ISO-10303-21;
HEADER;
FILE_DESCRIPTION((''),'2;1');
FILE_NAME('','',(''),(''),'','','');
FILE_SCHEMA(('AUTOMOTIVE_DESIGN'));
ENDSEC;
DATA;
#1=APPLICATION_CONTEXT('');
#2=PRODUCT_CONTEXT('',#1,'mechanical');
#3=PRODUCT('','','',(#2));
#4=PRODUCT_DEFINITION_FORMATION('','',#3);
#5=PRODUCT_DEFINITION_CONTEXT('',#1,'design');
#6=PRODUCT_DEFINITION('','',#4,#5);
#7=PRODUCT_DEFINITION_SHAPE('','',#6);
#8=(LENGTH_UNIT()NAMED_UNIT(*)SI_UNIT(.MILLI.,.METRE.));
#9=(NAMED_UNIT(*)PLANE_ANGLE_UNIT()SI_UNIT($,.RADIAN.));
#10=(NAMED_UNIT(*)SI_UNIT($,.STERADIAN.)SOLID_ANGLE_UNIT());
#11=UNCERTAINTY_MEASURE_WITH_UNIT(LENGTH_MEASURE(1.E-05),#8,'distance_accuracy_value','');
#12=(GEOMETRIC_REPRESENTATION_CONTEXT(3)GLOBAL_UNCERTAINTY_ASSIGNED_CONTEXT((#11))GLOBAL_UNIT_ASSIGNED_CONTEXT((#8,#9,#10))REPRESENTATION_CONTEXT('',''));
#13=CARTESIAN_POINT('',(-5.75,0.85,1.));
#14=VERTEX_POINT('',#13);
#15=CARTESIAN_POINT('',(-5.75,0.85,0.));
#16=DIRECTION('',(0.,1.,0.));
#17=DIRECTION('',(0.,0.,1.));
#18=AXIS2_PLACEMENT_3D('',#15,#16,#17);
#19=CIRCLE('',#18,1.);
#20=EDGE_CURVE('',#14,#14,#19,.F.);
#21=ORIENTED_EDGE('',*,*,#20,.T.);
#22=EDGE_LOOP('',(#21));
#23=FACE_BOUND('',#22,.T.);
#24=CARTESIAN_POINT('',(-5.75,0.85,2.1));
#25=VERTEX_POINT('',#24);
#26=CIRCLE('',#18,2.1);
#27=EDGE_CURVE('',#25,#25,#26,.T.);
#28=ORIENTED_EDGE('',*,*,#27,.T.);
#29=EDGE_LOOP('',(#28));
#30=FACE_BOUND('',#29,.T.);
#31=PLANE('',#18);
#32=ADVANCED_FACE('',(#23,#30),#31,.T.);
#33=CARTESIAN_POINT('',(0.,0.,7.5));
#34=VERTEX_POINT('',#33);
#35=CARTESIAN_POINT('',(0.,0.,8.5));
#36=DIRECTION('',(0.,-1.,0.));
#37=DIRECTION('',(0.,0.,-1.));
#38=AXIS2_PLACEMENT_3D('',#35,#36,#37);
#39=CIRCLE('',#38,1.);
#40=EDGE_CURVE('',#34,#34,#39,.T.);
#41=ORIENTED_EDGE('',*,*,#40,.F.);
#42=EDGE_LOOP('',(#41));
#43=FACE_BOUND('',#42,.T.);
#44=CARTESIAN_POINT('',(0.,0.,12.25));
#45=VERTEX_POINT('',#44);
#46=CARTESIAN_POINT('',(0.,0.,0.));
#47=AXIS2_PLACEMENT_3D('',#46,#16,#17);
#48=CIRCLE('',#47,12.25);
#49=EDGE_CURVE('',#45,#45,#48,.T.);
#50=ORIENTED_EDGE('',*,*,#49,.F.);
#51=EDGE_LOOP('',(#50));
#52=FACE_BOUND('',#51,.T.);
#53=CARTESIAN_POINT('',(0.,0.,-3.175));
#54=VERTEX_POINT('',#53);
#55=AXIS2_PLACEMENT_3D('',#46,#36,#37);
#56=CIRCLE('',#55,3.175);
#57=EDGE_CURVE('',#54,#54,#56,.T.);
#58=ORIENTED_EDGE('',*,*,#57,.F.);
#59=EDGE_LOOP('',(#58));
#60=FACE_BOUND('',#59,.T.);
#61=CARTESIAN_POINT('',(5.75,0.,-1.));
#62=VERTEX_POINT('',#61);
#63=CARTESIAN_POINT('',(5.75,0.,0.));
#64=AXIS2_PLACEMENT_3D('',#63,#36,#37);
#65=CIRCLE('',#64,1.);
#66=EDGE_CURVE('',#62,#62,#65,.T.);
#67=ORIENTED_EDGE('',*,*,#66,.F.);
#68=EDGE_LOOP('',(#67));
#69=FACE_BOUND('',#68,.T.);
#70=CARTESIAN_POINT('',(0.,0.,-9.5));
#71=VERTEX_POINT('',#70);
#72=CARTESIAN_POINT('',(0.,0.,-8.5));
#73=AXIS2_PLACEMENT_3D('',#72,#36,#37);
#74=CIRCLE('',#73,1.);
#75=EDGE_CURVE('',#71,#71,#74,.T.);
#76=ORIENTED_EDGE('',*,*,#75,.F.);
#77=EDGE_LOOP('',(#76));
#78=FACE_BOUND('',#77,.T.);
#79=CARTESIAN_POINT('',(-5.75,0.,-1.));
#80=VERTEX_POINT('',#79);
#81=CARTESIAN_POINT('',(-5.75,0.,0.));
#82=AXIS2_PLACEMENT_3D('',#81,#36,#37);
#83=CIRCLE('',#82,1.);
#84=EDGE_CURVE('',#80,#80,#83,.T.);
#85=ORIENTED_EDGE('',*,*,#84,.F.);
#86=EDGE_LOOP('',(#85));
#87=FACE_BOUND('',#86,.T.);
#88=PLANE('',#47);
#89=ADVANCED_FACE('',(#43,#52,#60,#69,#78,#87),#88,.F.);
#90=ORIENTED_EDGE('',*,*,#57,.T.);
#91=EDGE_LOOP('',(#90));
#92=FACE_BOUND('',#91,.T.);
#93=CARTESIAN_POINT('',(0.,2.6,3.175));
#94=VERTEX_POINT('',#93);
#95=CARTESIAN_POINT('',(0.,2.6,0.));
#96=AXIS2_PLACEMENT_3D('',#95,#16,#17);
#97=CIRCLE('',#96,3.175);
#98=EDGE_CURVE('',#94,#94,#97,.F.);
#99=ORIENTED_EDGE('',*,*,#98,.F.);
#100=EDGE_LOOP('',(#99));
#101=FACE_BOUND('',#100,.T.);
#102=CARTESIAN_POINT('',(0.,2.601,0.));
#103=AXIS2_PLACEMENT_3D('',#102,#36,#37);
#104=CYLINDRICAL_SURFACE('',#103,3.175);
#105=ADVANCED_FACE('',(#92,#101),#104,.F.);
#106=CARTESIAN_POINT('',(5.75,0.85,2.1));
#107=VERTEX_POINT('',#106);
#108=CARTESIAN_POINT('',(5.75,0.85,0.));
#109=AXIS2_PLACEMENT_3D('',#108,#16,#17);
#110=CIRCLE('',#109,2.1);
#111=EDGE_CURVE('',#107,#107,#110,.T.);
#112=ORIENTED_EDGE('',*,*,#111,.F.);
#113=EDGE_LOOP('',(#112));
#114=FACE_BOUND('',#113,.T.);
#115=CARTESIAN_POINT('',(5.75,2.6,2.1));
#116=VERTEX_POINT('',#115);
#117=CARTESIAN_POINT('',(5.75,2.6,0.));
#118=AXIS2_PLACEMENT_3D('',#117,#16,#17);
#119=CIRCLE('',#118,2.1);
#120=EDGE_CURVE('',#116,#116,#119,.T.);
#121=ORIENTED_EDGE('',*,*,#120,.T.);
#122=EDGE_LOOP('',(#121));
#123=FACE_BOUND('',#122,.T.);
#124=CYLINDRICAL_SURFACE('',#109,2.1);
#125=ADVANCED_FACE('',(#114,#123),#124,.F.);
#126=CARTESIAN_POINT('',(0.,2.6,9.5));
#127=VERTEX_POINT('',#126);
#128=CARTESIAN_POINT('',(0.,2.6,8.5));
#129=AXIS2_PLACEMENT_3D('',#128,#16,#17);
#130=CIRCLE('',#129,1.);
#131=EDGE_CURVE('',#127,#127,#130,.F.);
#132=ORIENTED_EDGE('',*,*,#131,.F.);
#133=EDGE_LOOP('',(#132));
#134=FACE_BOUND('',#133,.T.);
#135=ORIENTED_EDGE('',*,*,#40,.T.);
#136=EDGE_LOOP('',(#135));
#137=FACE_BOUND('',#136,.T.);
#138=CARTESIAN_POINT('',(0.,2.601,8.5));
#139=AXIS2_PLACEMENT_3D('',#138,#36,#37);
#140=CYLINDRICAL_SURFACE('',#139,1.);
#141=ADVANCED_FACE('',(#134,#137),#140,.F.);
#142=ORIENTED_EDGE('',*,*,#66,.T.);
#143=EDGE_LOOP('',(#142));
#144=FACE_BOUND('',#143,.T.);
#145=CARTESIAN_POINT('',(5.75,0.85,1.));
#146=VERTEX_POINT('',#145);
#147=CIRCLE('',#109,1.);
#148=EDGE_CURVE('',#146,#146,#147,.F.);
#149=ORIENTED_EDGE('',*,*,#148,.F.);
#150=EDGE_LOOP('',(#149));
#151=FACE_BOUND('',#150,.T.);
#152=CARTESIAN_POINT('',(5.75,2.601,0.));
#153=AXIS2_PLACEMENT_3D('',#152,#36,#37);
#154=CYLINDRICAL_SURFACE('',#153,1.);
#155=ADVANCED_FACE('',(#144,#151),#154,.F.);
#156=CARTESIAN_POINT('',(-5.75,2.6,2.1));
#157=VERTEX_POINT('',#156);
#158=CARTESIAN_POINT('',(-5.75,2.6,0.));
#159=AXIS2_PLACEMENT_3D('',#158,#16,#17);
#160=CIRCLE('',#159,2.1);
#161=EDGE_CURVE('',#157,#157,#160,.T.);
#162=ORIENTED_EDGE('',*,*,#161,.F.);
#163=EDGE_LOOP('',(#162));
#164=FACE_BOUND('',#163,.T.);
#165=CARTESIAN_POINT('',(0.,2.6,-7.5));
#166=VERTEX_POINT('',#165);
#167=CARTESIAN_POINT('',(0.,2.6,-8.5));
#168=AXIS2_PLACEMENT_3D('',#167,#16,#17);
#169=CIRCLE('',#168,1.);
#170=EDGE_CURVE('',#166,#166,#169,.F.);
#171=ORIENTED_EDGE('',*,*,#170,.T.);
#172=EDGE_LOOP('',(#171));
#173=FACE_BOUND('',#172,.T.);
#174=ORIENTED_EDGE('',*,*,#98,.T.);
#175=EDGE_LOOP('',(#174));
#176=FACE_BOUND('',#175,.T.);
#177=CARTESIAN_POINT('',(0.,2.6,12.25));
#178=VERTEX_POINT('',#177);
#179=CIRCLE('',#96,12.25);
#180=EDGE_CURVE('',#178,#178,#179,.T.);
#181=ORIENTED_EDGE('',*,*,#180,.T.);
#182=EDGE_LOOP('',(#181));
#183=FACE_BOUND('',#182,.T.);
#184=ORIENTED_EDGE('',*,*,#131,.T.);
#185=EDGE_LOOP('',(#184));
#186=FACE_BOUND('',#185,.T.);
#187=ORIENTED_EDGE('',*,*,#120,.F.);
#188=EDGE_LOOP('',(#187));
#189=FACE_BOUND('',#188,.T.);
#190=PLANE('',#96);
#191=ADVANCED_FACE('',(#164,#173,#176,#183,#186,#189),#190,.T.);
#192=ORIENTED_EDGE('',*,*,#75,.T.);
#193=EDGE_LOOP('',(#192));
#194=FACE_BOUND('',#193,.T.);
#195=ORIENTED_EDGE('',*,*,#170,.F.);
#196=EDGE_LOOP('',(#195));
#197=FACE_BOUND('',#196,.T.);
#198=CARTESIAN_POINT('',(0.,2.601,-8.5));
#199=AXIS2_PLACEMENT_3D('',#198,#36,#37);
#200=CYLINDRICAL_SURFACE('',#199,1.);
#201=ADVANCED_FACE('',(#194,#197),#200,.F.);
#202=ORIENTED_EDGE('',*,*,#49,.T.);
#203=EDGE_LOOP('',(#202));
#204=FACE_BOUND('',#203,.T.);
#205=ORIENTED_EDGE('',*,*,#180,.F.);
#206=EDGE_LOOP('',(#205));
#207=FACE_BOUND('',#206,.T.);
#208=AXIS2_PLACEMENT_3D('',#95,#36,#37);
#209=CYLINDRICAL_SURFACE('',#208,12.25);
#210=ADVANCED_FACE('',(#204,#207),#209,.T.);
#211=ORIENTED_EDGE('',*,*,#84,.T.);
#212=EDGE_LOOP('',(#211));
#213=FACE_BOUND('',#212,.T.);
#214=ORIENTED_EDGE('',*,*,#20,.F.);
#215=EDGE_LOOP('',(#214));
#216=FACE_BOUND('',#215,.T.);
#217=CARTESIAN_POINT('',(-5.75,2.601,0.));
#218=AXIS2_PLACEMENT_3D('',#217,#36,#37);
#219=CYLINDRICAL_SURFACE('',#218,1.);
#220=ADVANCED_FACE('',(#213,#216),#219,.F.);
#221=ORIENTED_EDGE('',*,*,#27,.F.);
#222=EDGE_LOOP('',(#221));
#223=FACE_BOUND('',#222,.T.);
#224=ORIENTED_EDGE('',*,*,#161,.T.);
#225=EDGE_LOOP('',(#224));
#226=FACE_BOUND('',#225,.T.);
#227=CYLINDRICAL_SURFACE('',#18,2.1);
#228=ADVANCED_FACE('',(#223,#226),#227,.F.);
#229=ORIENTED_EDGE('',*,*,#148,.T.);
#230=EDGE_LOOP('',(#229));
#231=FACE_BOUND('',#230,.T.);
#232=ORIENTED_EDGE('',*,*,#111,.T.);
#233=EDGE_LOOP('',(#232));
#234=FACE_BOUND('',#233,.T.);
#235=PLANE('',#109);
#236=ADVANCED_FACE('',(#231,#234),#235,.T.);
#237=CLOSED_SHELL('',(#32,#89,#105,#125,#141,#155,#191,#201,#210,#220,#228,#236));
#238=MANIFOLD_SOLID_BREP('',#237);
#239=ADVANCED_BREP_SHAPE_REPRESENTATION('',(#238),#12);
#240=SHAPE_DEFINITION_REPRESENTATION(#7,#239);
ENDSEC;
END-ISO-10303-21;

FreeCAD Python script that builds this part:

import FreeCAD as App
import Part
import Sketcher
from FreeCAD import Vector
Q = App.Units.Quantity

doc = App.newDocument("Part")
params = doc.addObject("Spreadsheet::Sheet", "Params")
for row, (alias, value) in enumerate([
    ("sketch1_diameter", "24.5 mm"),
    ("pad1_length", "2.6 mm"),
    ("sketch2_diameter", "6.35 mm"),
    ("sketch3_diameter", "2 mm"),
    ("sketch4_diameter", "2 mm"),
    ("sketch5_diameter", "2 mm"),
    ("sketch6_diameter", "2 mm"),
    ("sketch7_diameter", "4.2 mm"),
    ("pocket6_length", "1.75 mm"),
], start=1):
    params.set(f"A{row}", alias)
    params.set(f"B{row}", "=" + value)
    params.setAlias(f"B{row}", alias)

body = doc.addObject("PartDesign::Body", "Body")

sketch1 = body.newObject("Sketcher::SketchObject", "Sketch")
sketch1.AttachmentSupport = (doc.getObject("XZ_Plane"), [""])
sketch1.MapMode = "FlatFace"
sketch1.addGeometry(Part.Circle(Vector(0, 0, 0), Vector(0, 0, 1), 12), False)
sketch1.addConstraint([
    Sketcher.Constraint("Coincident", 0, 3, -1, 1),
    Sketcher.Constraint("Diameter", 0, Q("24.5 mm")),
])
sketch1.setExpression("Constraints[1]", "Params.sketch1_diameter")
pad1 = body.newObject("PartDesign::Pad", "Pad")
pad1.Profile = sketch1
pad1.setExpression("Length", "Params.pad1_length")
pad1.Reversed = True

sketch2 = body.newObject("Sketcher::SketchObject", "Sketch001")
sketch2.AttachmentSupport = (doc.getObject("XZ_Plane"), [""])
sketch2.MapMode = "FlatFace"
sketch2.addGeometry(Part.Circle(Vector(0, 0, 0), Vector(0, 0, 1), 3.2), False)
sketch2.addConstraint([
    Sketcher.Constraint("Coincident", 0, 3, -1, 1),
    Sketcher.Constraint("Diameter", 0, Q("6.35 mm")),
])
sketch2.setExpression("Constraints[1]", "Params.sketch2_diameter")
pocket1 = body.newObject("PartDesign::Pocket", "Pocket")
pocket1.Profile = sketch2
pocket1.Type = "UpToFirst"

sketch3 = body.newObject("Sketcher::SketchObject", "Sketch002")
sketch3.AttachmentSupport = (doc.getObject("XZ_Plane"), [""])
sketch3.MapMode = "FlatFace"
sketch3.addGeometry(Part.Circle(Vector(0, 8.5, 0), Vector(0, 0, 1), 1), False)
sketch3.addConstraint([
    Sketcher.Constraint("PointOnObject", 0, 3, -2),
    Sketcher.Constraint("Diameter", 0, Q("2 mm")),
    Sketcher.Constraint("DistanceY", -1, 1, 0, 3, Q("8.5 mm")),
])
sketch3.setExpression("Constraints[1]", "Params.sketch3_diameter")
pocket2 = body.newObject("PartDesign::Pocket", "Pocket001")
pocket2.Profile = sketch3
pocket2.Type = "UpToFirst"

sketch4 = body.newObject("Sketcher::SketchObject", "Sketch003")
sketch4.AttachmentSupport = (doc.getObject("XZ_Plane"), [""])
sketch4.MapMode = "FlatFace"
sketch4.addGeometry(Part.Circle(Vector(0, -8.5, 0), Vector(0, 0, 1), 1), False)
sketch4.addConstraint([
    Sketcher.Constraint("PointOnObject", 0, 3, -2),
    Sketcher.Constraint("Diameter", 0, Q("2 mm")),
    Sketcher.Constraint("DistanceY", 0, 3, -1, 1, Q("8.5 mm")),
])
sketch4.setExpression("Constraints[1]", "Params.sketch4_diameter")
pocket3 = body.newObject("PartDesign::Pocket", "Pocket002")
pocket3.Profile = sketch4
pocket3.Type = "UpToFirst"

sketch5 = body.newObject("Sketcher::SketchObject", "Sketch004")
sketch5.AttachmentSupport = (doc.getObject("XZ_Plane"), [""])
sketch5.MapMode = "FlatFace"
sketch5.addGeometry(Part.Circle(Vector(-5.8, 0, 0), Vector(0, 0, 1), 1), False)
sketch5.addConstraint([
    Sketcher.Constraint("PointOnObject", 0, 3, -1),
    Sketcher.Constraint("Diameter", 0, Q("2 mm")),
    Sketcher.Constraint("DistanceX", 0, 3, -1, 1, Q("5.75 mm")),
])
sketch5.setExpression("Constraints[1]", "Params.sketch5_diameter")
pocket4 = body.newObject("PartDesign::Pocket", "Pocket003")
pocket4.Profile = sketch5
pocket4.Type = "UpToFirst"

sketch6 = body.newObject("Sketcher::SketchObject", "Sketch005")
sketch6.AttachmentSupport = (doc.getObject("XZ_Plane"), [""])
sketch6.MapMode = "FlatFace"
sketch6.addGeometry(Part.Circle(Vector(5.8, 0, 0), Vector(0, 0, 1), 1), False)
sketch6.addConstraint([
    Sketcher.Constraint("PointOnObject", 0, 3, -1),
    Sketcher.Constraint("Diameter", 0, Q("2 mm")),
    Sketcher.Constraint("DistanceX", -1, 1, 0, 3, Q("5.75 mm")),
])
sketch6.setExpression("Constraints[1]", "Params.sketch6_diameter")
pocket5 = body.newObject("PartDesign::Pocket", "Pocket004")
pocket5.Profile = sketch6
pocket5.Type = "UpToFirst"

sketch7 = body.newObject("Sketcher::SketchObject", "Sketch006")
sketch7.AttachmentSupport = (doc.getObject("XZ_Plane"), [""])
sketch7.MapMode = "FlatFace"
sketch7.AttachmentOffset = App.Placement(Vector(0, 0, -2.6), App.Rotation())
sketch7.addGeometry([
    Part.Circle(Vector(-5.8, 0, 0), Vector(0, 0, 1), 2.1),
    Part.Circle(Vector(5.8, 0, 0), Vector(0, 0, 1), 2.1),
], False)
sketch7.addConstraint([
    Sketcher.Constraint("Equal", 0, 1),
    Sketcher.Constraint("Symmetric", 0, 3, 1, 3, -1, 1),
    Sketcher.Constraint("PointOnObject", 0, 3, -1),
    Sketcher.Constraint("Diameter", 0, Q("4.2 mm")),
    Sketcher.Constraint("DistanceX", 0, 3, 1, 3, Q("11.5 mm")),
])
sketch7.setExpression("Constraints[3]", "Params.sketch7_diameter")
pocket6 = body.newObject("PartDesign::Pocket", "Pocket005")
pocket6.Profile = sketch7
pocket6.setExpression("Length", "Params.pocket6_length")
pocket6.Reversed = True

doc.recompute()
